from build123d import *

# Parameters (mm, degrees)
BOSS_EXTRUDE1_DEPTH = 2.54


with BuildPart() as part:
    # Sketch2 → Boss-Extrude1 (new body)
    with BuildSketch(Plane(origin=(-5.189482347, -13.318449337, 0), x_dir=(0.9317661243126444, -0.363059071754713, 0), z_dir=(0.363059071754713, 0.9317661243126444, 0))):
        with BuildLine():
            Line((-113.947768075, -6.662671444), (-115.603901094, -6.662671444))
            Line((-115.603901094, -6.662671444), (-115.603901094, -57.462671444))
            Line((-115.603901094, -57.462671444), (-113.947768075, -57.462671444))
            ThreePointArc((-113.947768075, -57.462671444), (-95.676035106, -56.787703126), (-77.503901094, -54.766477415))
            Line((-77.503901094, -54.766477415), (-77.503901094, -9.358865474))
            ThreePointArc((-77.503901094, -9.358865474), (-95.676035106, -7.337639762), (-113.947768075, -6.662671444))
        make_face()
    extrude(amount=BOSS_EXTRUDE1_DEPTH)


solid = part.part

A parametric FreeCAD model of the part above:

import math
import FreeCAD as App
import Part
import Sketcher
Q = App.Units.Quantity

doc = App.newDocument("Part")
body = doc.addObject("PartDesign::Body", "Body")

# Sketch on an angled plane
sketch1 = body.newObject("Sketcher::SketchObject", "Sketch")
sketch1.Placement = App.Placement(App.Vector(-5.189482, -13.318449, 0), App.Rotation(App.Vector(0.931766124, -0.363059072, 0), App.Vector(0, 0, -1), App.Vector(0.363059072, 0.931766124, 0), "ZXY"))
sketch1.addGeometry(Part.LineSegment(App.Vector(-113.947768, -6.662671, 0), App.Vector(-115.603901, -6.662671, 0)), False)
sketch1.addGeometry(Part.LineSegment(App.Vector(-115.603901, -6.662671, 0), App.Vector(-115.603901, -57.462671, 0)), False)
sketch1.addGeometry(Part.LineSegment(App.Vector(-115.603901, -57.462671, 0), App.Vector(-113.947768, -57.462671, 0)), False)
sketch1.addGeometry(Part.ArcOfCircle(Part.Circle(App.Vector(-113.947768, 190.187328, 0), App.Vector(0, 0, 1), 247.65), math.radians(-90), math.radians(-81.537692)), False)
sketch1.addGeometry(Part.LineSegment(App.Vector(-77.503901, -54.766477, 0), App.Vector(-77.503901, -9.358865, 0)), False)
sketch1.addGeometry(Part.ArcOfCircle(Part.Circle(App.Vector(-113.947768, -254.312671, 0), App.Vector(0, 0, 1), 247.65), math.radians(81.537692), math.radians(90)), False)
sketch1.addConstraint(Sketcher.Constraint("Coincident", 0, 2, 1, 1))
sketch1.addConstraint(Sketcher.Constraint("Coincident", 1, 2, 2, 1))
sketch1.addConstraint(Sketcher.Constraint("Tangent", 2, 2, 3, 1))
sketch1.addConstraint(Sketcher.Constraint("Coincident", 3, 2, 4, 1))
sketch1.addConstraint(Sketcher.Constraint("Coincident", 4, 2, 5, 1))
sketch1.addConstraint(Sketcher.Constraint("Tangent", 5, 2, 0, 1))
sketch1.addConstraint(Sketcher.Constraint("Horizontal", 0))
sketch1.addConstraint(Sketcher.Constraint("Vertical", 1))
sketch1.addConstraint(Sketcher.Constraint("Horizontal", 2))
sketch1.addConstraint(Sketcher.Constraint("Vertical", 4))
sketch1.addConstraint(Sketcher.Constraint("Equal", 3, 5))
sketch1.addConstraint(Sketcher.Constraint("Vertical", 3, 3, 5, 3))
sketch1.addConstraint(Sketcher.Constraint("DistanceY", 1, 2, 1, 1, Q("2 in")))
sketch1.addConstraint(Sketcher.Constraint("Radius", 3, Q("9.75 in")))
sketch1.addConstraint(Sketcher.Constraint("DistanceX", 1, 2, 3, 2, Q("1.5 in")))
sketch1.addConstraint(Sketcher.Constraint("DistanceY", 4, 1, 4, 2, 45.407612))
sketch1.addConstraint(Sketcher.Constraint("DistanceX", 0, 2, -1, 1, 115.603901))
sketch1.addConstraint(Sketcher.Constraint("DistanceY", -1, 1, 3, 3, 190.187328))
pad1 = body.newObject("PartDesign::Pad", "Pad")
pad1.Profile = sketch1
pad1.Length = Q("0.1 in")

doc.recompute()
